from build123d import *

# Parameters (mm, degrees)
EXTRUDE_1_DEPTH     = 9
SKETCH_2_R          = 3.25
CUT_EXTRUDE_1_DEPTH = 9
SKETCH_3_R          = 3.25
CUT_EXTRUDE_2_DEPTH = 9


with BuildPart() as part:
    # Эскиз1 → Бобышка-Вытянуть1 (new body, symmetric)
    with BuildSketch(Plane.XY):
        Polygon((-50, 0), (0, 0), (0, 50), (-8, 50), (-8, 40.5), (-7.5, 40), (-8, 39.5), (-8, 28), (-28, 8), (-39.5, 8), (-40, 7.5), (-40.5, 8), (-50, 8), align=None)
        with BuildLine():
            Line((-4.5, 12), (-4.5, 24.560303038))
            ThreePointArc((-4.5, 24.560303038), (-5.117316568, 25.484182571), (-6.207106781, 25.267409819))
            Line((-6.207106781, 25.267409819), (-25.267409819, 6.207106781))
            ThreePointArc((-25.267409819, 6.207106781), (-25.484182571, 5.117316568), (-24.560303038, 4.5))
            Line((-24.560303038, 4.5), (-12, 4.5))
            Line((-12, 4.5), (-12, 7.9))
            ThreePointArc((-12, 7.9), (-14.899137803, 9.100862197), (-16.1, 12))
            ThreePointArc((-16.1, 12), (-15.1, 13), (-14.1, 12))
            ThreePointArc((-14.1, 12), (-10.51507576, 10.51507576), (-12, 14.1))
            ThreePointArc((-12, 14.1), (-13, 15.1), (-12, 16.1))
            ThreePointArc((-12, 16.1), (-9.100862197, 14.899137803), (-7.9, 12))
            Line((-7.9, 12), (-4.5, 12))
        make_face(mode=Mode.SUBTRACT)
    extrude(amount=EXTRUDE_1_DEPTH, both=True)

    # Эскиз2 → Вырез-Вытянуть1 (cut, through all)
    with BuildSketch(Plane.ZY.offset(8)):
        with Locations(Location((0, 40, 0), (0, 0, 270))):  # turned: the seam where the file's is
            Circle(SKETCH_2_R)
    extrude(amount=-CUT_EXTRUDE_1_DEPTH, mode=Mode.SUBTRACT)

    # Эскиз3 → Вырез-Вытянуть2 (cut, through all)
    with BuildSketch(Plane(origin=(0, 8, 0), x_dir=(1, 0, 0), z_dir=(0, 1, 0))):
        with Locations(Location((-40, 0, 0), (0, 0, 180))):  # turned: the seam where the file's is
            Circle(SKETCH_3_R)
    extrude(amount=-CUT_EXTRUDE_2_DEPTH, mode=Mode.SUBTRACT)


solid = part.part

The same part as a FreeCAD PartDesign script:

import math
import FreeCAD as App
import Part
import Sketcher
Q = App.Units.Quantity

doc = App.newDocument("Part")
body = doc.addObject("PartDesign::Body", "Body")

# Sketch on XY plane
sketch1 = body.newObject("Sketcher::SketchObject", "Sketch")
sketch1.AttachmentSupport = (doc.getObject("XY_Plane"), [""])
sketch1.MapMode = "FlatFace"
sketch1.addGeometry([
    Part.LineSegment(App.Vector(-50, 0, 0), App.Vector(0, 0, 0)),  # 0
    Part.LineSegment(App.Vector(0, 0, 0), App.Vector(0, 50, 0)),  # 1
    Part.LineSegment(App.Vector(0, 50, 0), App.Vector(-8, 50, 0)),  # 2
    Part.LineSegment(App.Vector(-8, 50, 0), App.Vector(-8, 40.5, 0)),  # 3
    Part.LineSegment(App.Vector(-8, 40.5, 0), App.Vector(-7.5, 40, 0)),  # 4
    Part.LineSegment(App.Vector(-7.5, 40, 0), App.Vector(-8, 39.5, 0)),  # 5
    Part.LineSegment(App.Vector(-8, 39.5, 0), App.Vector(-8, 28, 0)),  # 6
    Part.LineSegment(App.Vector(-8, 28, 0), App.Vector(-28, 8, 0)),  # 7
    Part.LineSegment(App.Vector(-28, 8, 0), App.Vector(-39.5, 8, 0)),  # 8
    Part.LineSegment(App.Vector(-39.5, 8, 0), App.Vector(-40, 7.5, 0)),  # 9
    Part.LineSegment(App.Vector(-40, 7.5, 0), App.Vector(-40.5, 8, 0)),  # 10
    Part.LineSegment(App.Vector(-40.5, 8, 0), App.Vector(-50, 8, 0)),  # 11
    Part.LineSegment(App.Vector(-50, 8, 0), App.Vector(-50, 0, 0)),  # 12
    Part.LineSegment(App.Vector(-4.5, 24.6, 0), App.Vector(-4.5, 12, 0)),  # 13
    Part.LineSegment(App.Vector(-4.5, 12, 0), App.Vector(-7.9, 12, 0)),  # 14
    Part.ArcOfCircle(Part.Circle(App.Vector(-12, 12, 0), App.Vector(0, 0, 1), 4.1), math.radians(0), math.radians(90)),  # 15
    Part.ArcOfCircle(Part.Circle(App.Vector(-12, 15.1, 0), App.Vector(0, 0, 1), 1), math.radians(90), math.radians(270)),  # 16
    Part.ArcOfCircle(Part.Circle(App.Vector(-12, 12, 0), App.Vector(0, 0, 1), 2.1), math.radians(180), math.radians(450)),  # 17
    Part.ArcOfCircle(Part.Circle(App.Vector(-15.1, 12, 0), App.Vector(0, 0, 1), 1), math.radians(0), math.radians(180)),  # 18
    Part.ArcOfCircle(Part.Circle(App.Vector(-12, 12, 0), App.Vector(0, 0, 1), 4.1), math.radians(180), math.radians(270)),  # 19
    Part.LineSegment(App.Vector(-12, 7.9, 0), App.Vector(-12, 4.5, 0)),  # 20
    Part.LineSegment(App.Vector(-12, 4.5, 0), App.Vector(-24.6, 4.5, 0)),  # 21
    Part.ArcOfCircle(Part.Circle(App.Vector(-24.6, 5.5, 0), App.Vector(0, 0, 1), 1), math.radians(135), math.radians(270)),  # 22
    Part.LineSegment(App.Vector(-25.3, 6.2, 0), App.Vector(-6.2, 25.3, 0)),  # 23
    Part.ArcOfCircle(Part.Circle(App.Vector(-5.5, 24.6, 0), App.Vector(0, 0, 1), 1), math.radians(0), math.radians(135)),  # 24
], False)
sketch1.addConstraint([
    Sketcher.Constraint("Coincident", 0, 2, 1, 1),
    Sketcher.Constraint("Coincident", 1, 2, 2, 1),
    Sketcher.Constraint("Coincident", 2, 2, 3, 1),
    Sketcher.Constraint("Coincident", 3, 2, 4, 1),
    Sketcher.Constraint("Coincident", 4, 2, 5, 1),
    Sketcher.Constraint("Coincident", 5, 2, 6, 1),
    Sketcher.Constraint("Coincident", 6, 2, 7, 1),
    Sketcher.Constraint("Coincident", 7, 2, 8, 1),
    Sketcher.Constraint("Coincident", 8, 2, 9, 1),
    Sketcher.Constraint("Coincident", 9, 2, 10, 1),
    Sketcher.Constraint("Coincident", 10, 2, 11, 1),
    Sketcher.Constraint("Coincident", 11, 2, 12, 1),
    Sketcher.Constraint("Coincident", 12, 2, 0, 1),
    Sketcher.Constraint("Coincident", 13, 2, 14, 1),
    Sketcher.Constraint("Coincident", 14, 2, 15, 1),
    Sketcher.Constraint("Tangent", 15, 2, 16, 1),
    Sketcher.Constraint("Tangent", 16, 2, 17, 2),
    Sketcher.Constraint("Tangent", 17, 1, 18, 1),
    Sketcher.Constraint("Tangent", 18, 2, 19, 1),
    Sketcher.Constraint("Coincident", 19, 2, 20, 1),
    Sketcher.Constraint("Coincident", 20, 2, 21, 1),
    Sketcher.Constraint("Tangent", 21, 2, 22, 2),
    Sketcher.Constraint("Tangent", 22, 1, 23, 1),
    Sketcher.Constraint("Tangent", 23, 2, 24, 2),
    Sketcher.Constraint("Tangent", 24, 1, 13, 1),
    Sketcher.Constraint("Horizontal", 0),
    Sketcher.Constraint("Vertical", 1),
    Sketcher.Constraint("Horizontal", 2),
    Sketcher.Constraint("Vertical", 3),
    Sketcher.Constraint("Vertical", 6),
    Sketcher.Constraint("Horizontal", 8),
    Sketcher.Constraint("Horizontal", 11),
    Sketcher.Constraint("Vertical", 12),
    Sketcher.Constraint("Vertical", 13),
    Sketcher.Constraint("Horizontal", 14),
    Sketcher.Constraint("Vertical", 20),
    Sketcher.Constraint("Horizontal", 21),
    Sketcher.Constraint("Coincident", 0, 2, -1, 1),
    Sketcher.Constraint("Coincident", 17, 3, 15, 3),
    Sketcher.Constraint("Coincident", 19, 3, 15, 3),
    Sketcher.Constraint("Equal", 16, 18),
    Sketcher.Constraint("Equal", 18, 22),
    Sketcher.Constraint("Equal", 22, 24),
    Sketcher.Constraint("Perpendicular", 4, 5),
    Sketcher.Constraint("Parallel", 5, 7),
    Sketcher.Constraint("Parallel", 7, 9),
    Sketcher.Constraint("Perpendicular", 9, 10),
    Sketcher.Constraint("Perpendicular", 10, 23),
    Sketcher.Constraint("Horizontal", 17, 3, 18, 3),
    Sketcher.Constraint("Horizontal", 8, 2, 10, 2),
    Sketcher.Constraint("Horizontal", 19, 3, 13, 2),
    Sketcher.Constraint("Vertical", 15, 3, 16, 3),
    Sketcher.Constraint("Vertical", 3, 2, 5, 2),
    Sketcher.Constraint("Vertical", 16, 2, 19, 2),
    Sketcher.Constraint("Equal", 0, 1),
    Sketcher.Constraint("Equal", 11, 3),
    Sketcher.Constraint("Equal", 8, 6),
    Sketcher.Constraint("Equal", 2, 12),
    Sketcher.Constraint("Equal", 21, 13),
    Sketcher.Constraint("Equal", 14, 20),
    Sketcher.Constraint("Radius", 16, Q("1 mm")),
    Sketcher.Constraint("Radius", 15, Q("4.1 mm")),
    Sketcher.Constraint("DistanceX", 0, 1, 0, 2, Q("50 mm")),
    Sketcher.Constraint("DistanceX", 2, 2, 2, 1, Q("8 mm")),
    Sketcher.Constraint("DistanceX", 8, 2, 8, 1, Q("11.5 mm")),
    Sketcher.Constraint("DistanceX", 11, 2, 11, 1, Q("9.5 mm")),
    Sketcher.Constraint("DistanceX", 14, 2, 14, 1, Q("3.4 mm")),
    Sketcher.Constraint("DistanceX", 15, 3, -1, 1, Q("12 mm")),
    Sketcher.Constraint("DistanceY", -1, 1, 15, 3, Q("12 mm")),
    Sketcher.Constraint("DistanceY", -1, 1, 4, 2, Q("40 mm")),
    Sketcher.Constraint("Distance", 23, Q("26.955339 mm")),
])
pad1 = body.newObject("PartDesign::Pad", "Pad")
pad1.Profile = sketch1
pad1.Length = 18
pad1.Midplane = True

# Sketch on YZ plane
sketch2 = body.newObject("Sketcher::SketchObject", "Sketch001")
sketch2.AttachmentSupport = (doc.getObject("YZ_Plane"), [""])
sketch2.MapMode = "FlatFace"
sketch2.AttachmentOffset = App.Placement(App.Vector(0, 0, -8), App.Rotation())
sketch2.addGeometry(Part.Circle(App.Vector(40, 0, 0), App.Vector(0, 0, 1), 3.2), False)
sketch2.addConstraint([
    Sketcher.Constraint("PointOnObject", 0, 3, -1),
    Sketcher.Constraint("Diameter", 0, Q("6.5 mm")),
    Sketcher.Constraint("DistanceX", -1, 1, 0, 3, Q("40 mm")),
])
pocket1 = body.newObject("PartDesign::Pocket", "Pocket")
pocket1.Profile = sketch2
pocket1.Type = "ThroughAll"
pocket1.Reversed = True

# Sketch on XZ plane
sketch3 = body.newObject("Sketcher::SketchObject", "Sketch002")
sketch3.AttachmentSupport = (doc.getObject("XZ_Plane"), [""])
sketch3.MapMode = "FlatFace"
sketch3.AttachmentOffset = App.Placement(App.Vector(0, 0, -8), App.Rotation())
sketch3.addGeometry(Part.Circle(App.Vector(-40, 0, 0), App.Vector(0, 0, 1), 3.2), False)
sketch3.addConstraint([
    Sketcher.Constraint("PointOnObject", 0, 3, -1),
    Sketcher.Constraint("Diameter", 0, Q("6.5 mm")),
    Sketcher.Constraint("DistanceX", 0, 3, -1, 1, Q("40 mm")),
])
pocket2 = body.newObject("PartDesign::Pocket", "Pocket001")
pocket2.Profile = sketch3
pocket2.Type = "ThroughAll"
pocket2.Reversed = True

doc.recompute()
